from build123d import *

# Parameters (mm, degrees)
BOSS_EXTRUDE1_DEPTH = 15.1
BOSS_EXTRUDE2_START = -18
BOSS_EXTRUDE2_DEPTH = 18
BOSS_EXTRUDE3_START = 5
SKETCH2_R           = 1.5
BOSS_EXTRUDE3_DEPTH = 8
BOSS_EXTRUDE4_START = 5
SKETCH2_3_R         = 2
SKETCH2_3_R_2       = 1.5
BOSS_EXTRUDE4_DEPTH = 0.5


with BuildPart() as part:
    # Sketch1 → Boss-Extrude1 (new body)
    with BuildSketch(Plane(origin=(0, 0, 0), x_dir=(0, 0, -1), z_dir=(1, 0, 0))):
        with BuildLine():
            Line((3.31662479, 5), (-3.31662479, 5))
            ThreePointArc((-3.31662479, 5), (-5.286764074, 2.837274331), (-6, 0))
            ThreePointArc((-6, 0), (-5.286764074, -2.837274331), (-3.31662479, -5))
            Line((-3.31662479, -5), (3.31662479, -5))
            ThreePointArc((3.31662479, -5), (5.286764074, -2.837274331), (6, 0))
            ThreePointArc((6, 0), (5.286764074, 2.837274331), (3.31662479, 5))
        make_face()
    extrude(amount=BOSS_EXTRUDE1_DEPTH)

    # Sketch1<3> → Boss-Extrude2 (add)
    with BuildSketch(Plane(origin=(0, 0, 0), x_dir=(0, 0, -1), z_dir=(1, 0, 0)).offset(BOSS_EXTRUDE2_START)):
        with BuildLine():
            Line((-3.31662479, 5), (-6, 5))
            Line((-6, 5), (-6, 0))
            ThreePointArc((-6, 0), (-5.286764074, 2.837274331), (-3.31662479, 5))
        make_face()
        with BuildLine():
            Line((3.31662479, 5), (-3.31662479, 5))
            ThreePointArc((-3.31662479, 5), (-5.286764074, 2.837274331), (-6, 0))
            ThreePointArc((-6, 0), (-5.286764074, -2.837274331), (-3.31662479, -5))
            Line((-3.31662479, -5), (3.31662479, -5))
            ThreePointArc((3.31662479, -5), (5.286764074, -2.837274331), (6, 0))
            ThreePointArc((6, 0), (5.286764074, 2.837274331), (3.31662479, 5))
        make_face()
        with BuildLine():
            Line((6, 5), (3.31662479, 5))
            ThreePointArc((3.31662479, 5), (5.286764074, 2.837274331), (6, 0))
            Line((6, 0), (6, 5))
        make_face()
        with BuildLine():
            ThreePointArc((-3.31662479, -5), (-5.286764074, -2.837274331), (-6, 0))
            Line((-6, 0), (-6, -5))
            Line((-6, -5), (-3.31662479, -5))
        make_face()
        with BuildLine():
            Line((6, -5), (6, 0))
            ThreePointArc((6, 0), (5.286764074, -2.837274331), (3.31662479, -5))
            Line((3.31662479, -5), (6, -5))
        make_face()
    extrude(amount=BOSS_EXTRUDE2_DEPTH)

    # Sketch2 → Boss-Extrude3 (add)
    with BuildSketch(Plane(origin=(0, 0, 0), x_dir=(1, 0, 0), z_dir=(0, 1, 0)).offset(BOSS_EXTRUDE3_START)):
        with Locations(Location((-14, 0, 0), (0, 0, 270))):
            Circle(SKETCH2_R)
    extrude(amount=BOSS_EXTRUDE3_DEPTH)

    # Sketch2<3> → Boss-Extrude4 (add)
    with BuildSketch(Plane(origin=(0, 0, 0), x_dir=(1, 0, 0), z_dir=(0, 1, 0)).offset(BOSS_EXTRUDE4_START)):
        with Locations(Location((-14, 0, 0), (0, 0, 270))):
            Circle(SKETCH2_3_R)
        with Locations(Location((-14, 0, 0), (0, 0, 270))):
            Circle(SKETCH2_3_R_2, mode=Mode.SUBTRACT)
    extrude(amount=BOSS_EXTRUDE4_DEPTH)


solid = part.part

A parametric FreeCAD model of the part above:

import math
import FreeCAD as App
import Part
import Sketcher

V = App.Vector


def add_polygon(sketch, points):
    """Adds a closed chain of lines whose ends are joined by coincident constraints."""
    first, n = sketch.GeometryCount, len(points)
    for a, b in zip(points, points[1:] + points[:1]):
        sketch.addGeometry(Part.LineSegment(App.Vector(*a, 0), App.Vector(*b, 0)), False)
    for i in range(n):
        sketch.addConstraint(Sketcher.Constraint("Coincident", first + i, 2, first + (i + 1) % n, 1))

doc = App.newDocument("Part")
body = doc.addObject("PartDesign::Body", "Body")

sketch1 = body.newObject("Sketcher::SketchObject", "Sketch")
sketch1.AttachmentSupport = (doc.getObject("YZ_Plane"), [""])
sketch1.MapMode = "FlatFace"
sketch1.addGeometry([
    Part.LineSegment(V(5, -3, 0), V(5, 3, 0)),
    Part.ArcOfCircle(Part.Circle(V(0, 0, 0), V(0, 0, 1), 6), math.radians(34), math.radians(90)),
    Part.ArcOfCircle(Part.Circle(V(0, 0, 0), V(0, 0, 1), 6), math.radians(90), math.radians(146)),
    Part.LineSegment(V(-5, 3, 0), V(-5, -3, 0)),
    Part.ArcOfCircle(Part.Circle(V(0, 0, 0), V(0, 0, 1), 6), math.radians(-146), math.radians(-90)),
    Part.ArcOfCircle(Part.Circle(V(0, 0, 0), V(0, 0, 1), 6), math.radians(-90), math.radians(-34)),
], False)
sketch1.addConstraint([
    Sketcher.Constraint("Coincident", 0, 2, 1, 1),
    Sketcher.Constraint("Tangent", 1, 2, 2, 1),
    Sketcher.Constraint("Coincident", 2, 2, 3, 1),
    Sketcher.Constraint("Coincident", 3, 2, 4, 1),
    Sketcher.Constraint("Tangent", 4, 2, 5, 1),
    Sketcher.Constraint("Coincident", 5, 2, 0, 1),
    Sketcher.Constraint("Vertical", 0),
    Sketcher.Constraint("Vertical", 3),
    Sketcher.Constraint("Coincident", 1, 3, -1, 1),
    Sketcher.Constraint("Coincident", 4, 3, -1, 1),
    Sketcher.Constraint("Equal", 1, 2),
    Sketcher.Constraint("Equal", 2, 4),
    Sketcher.Constraint("Equal", 4, 5),
    Sketcher.Constraint("PointOnObject", 1, 2, -2),
    Sketcher.Constraint("PointOnObject", 4, 2, -2),
    Sketcher.Constraint("Horizontal", 0, 2, 2, 2),
    Sketcher.Constraint("Radius", 1, 6.0),
    Sketcher.Constraint("DistanceX", -1, 1, 0, 2, 5.0),
])
pad1 = body.newObject("PartDesign::Pad", "Pad")
pad1.Profile = sketch1
pad1.Length = 15.1

sketch2 = body.newObject("Sketcher::SketchObject", "Sketch001")
sketch2.AttachmentSupport = (doc.getObject("YZ_Plane"), [""])
sketch2.MapMode = "FlatFace"
sketch2.AttachmentOffset = App.Placement(V(0, 0, -18), App.Rotation())
add_polygon(sketch2, [(5, 6), (-5, 6), (-5, -6), (5, -6)])
sketch2.addConstraint([
    Sketcher.Constraint("Horizontal", 0),
    Sketcher.Constraint("Vertical", 1),
    Sketcher.Constraint("Horizontal", 2),
    Sketcher.Constraint("Vertical", 3),
    Sketcher.Constraint("Symmetric", 0, 2, 2, 2, -1, 1),
    Sketcher.Constraint("DistanceX", 0, 2, 0, 1, 10.0),
    Sketcher.Constraint("DistanceY", 1, 2, 1, 1, 12.0),
])
pad2 = body.newObject("PartDesign::Pad", "Pad001")
pad2.Profile = sketch2
pad2.Length = 18

sketch3 = body.newObject("Sketcher::SketchObject", "Sketch002")
sketch3.AttachmentSupport = (doc.getObject("XZ_Plane"), [""])
sketch3.MapMode = "FlatFace"
sketch3.AttachmentOffset = App.Placement(V(0, 0, -5), App.Rotation())
sketch3.addGeometry(Part.Circle(V(-14, 0, 0), V(0, 0, 1), 1.5), False)
sketch3.addConstraint([
    Sketcher.Constraint("PointOnObject", 0, 3, -1),
    Sketcher.Constraint("Diameter", 0, 3.0),
    Sketcher.Constraint("DistanceX", 0, 3, -1, 1, 14.0),
])
pad3 = body.newObject("PartDesign::Pad", "Pad002")
pad3.Profile = sketch3
pad3.Length = 8
pad3.Reversed = True

sketch4 = body.newObject("Sketcher::SketchObject", "Sketch003")
sketch4.AttachmentSupport = (doc.getObject("XZ_Plane"), [""])
sketch4.MapMode = "FlatFace"
sketch4.AttachmentOffset = App.Placement(V(0, 0, -5), App.Rotation())
sketch4.addGeometry([
    Part.Circle(V(-14, 0, 0), V(0, 0, 1), 2),
    Part.Circle(V(-14, 0, 0), V(0, 0, 1), 1.5),
], False)
sketch4.addConstraint([
    Sketcher.Constraint("Coincident", 1, 3, 0, 3),
    Sketcher.Constraint("PointOnObject", 0, 3, -1),
    Sketcher.Constraint("Diameter", 0, 4.0),
    Sketcher.Constraint("Diameter", 1, 3.0),
    Sketcher.Constraint("DistanceX", 0, 3, -1, 1, 14.0),
])
pad4 = body.newObject("PartDesign::Pad", "Pad003")
pad4.Profile = sketch4
pad4.Length = 0.5
pad4.Reversed = True

doc.recompute()
